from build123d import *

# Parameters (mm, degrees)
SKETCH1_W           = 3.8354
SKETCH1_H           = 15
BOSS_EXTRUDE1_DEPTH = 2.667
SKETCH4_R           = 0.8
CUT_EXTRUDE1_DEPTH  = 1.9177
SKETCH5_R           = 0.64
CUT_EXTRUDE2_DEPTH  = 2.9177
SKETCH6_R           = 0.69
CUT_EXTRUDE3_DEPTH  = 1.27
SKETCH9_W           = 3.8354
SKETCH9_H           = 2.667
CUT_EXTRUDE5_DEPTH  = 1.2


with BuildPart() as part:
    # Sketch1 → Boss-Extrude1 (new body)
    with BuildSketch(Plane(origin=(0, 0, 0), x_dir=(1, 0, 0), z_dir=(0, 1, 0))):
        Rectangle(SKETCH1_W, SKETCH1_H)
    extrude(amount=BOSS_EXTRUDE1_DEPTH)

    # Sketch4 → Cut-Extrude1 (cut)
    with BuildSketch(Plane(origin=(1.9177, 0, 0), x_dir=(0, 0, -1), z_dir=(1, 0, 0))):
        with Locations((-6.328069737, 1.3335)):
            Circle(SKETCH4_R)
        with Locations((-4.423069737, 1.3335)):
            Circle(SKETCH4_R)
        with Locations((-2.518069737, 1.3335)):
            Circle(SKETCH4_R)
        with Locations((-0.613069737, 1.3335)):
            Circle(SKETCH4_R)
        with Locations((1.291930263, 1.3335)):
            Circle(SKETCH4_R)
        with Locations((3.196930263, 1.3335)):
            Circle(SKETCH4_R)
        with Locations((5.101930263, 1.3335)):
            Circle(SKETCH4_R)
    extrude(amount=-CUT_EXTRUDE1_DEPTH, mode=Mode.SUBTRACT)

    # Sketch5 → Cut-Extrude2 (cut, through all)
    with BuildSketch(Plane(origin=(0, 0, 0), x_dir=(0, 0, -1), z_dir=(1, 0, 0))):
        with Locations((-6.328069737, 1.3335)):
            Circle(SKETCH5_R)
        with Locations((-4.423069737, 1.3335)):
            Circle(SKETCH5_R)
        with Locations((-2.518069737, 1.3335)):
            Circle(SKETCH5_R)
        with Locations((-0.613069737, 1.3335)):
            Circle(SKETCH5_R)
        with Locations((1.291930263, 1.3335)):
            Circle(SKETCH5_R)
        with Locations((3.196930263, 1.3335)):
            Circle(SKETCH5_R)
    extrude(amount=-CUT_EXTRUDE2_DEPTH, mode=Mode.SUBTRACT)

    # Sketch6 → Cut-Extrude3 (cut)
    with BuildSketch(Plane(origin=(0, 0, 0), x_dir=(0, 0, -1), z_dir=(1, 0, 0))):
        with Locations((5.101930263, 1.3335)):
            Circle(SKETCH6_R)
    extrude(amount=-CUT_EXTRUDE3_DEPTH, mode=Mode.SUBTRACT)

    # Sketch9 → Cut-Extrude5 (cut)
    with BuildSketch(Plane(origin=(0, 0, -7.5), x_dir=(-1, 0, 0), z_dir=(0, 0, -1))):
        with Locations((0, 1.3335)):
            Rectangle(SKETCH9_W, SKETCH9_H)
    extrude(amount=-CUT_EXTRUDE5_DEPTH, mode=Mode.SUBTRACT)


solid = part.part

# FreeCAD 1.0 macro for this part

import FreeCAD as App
import Part
import Sketcher
from FreeCAD import Vector


def add_polygon(sketch, points):
    """Adds a closed chain of lines whose ends are joined by coincident constraints."""
    first, n = sketch.GeometryCount, len(points)
    for a, b in zip(points, points[1:] + points[:1]):
        sketch.addGeometry(Part.LineSegment(App.Vector(*a, 0), App.Vector(*b, 0)), False)
    for i in range(n):
        sketch.addConstraint(Sketcher.Constraint("Coincident", first + i, 2, first + (i + 1) % n, 1))

doc = App.newDocument("Part")
body = doc.addObject("PartDesign::Body", "Body")

# Sketch on XZ plane
sketch1 = body.newObject("Sketcher::SketchObject", "Sketch")
sketch1.AttachmentSupport = (doc.getObject("XZ_Plane"), [""])
sketch1.MapMode = "FlatFace"
add_polygon(sketch1, [(-1.9, -7.5), (-1.9, 7.5), (1.9, 7.5), (1.9, -7.5)])  # lines 0-3
sketch1.addConstraint([
    Sketcher.Constraint("Vertical", 0),
    Sketcher.Constraint("Horizontal", 1),
    Sketcher.Constraint("Vertical", 2),
    Sketcher.Constraint("Horizontal", 3),
    Sketcher.Constraint("Symmetric", 0, 2, 2, 2, -1, 1),
    Sketcher.Constraint("DistanceY", 0, 1, 0, 2, 15.0),
    Sketcher.Constraint("DistanceX", 1, 1, 1, 2, 3.8354),
])
pad1 = body.newObject("PartDesign::Pad", "Pad")
pad1.Profile = sketch1
pad1.Length = 2.667
pad1.Reversed = True

# Sketch on YZ plane
sketch2 = body.newObject("Sketcher::SketchObject", "Sketch001")
sketch2.AttachmentSupport = (doc.getObject("YZ_Plane"), [""])
sketch2.MapMode = "FlatFace"
sketch2.AttachmentOffset = App.Placement(Vector(0, 0, 1.9177), App.Rotation())
sketch2.addGeometry([
    Part.Circle(Vector(1.3, 6.3, 0), Vector(0, 0, 1), 0.8),  # 0
    Part.Circle(Vector(1.3, 4.4, 0), Vector(0, 0, 1), 0.8),  # 1
    Part.Circle(Vector(1.3, 2.5, 0), Vector(0, 0, 1), 0.8),  # 2
    Part.Circle(Vector(1.3, 0.6, 0), Vector(0, 0, 1), 0.8),  # 3
    Part.Circle(Vector(1.3, -1.3, 0), Vector(0, 0, 1), 0.8),  # 4
    Part.Circle(Vector(1.3, -3.2, 0), Vector(0, 0, 1), 0.8),  # 5
    Part.Circle(Vector(1.3, -5.1, 0), Vector(0, 0, 1), 0.8),  # 6
], False)
sketch2.addConstraint([
    Sketcher.Constraint("Equal", 0, 1),
    Sketcher.Constraint("Equal", 1, 2),
    Sketcher.Constraint("Equal", 2, 3),
    Sketcher.Constraint("Equal", 3, 4),
    Sketcher.Constraint("Equal", 4, 5),
    Sketcher.Constraint("Equal", 5, 6),
    Sketcher.Constraint("Vertical", 0, 3, 1, 3),
    Sketcher.Constraint("Vertical", 1, 3, 2, 3),
    Sketcher.Constraint("Vertical", 2, 3, 3, 3),
    Sketcher.Constraint("Vertical", 3, 3, 4, 3),
    Sketcher.Constraint("Vertical", 4, 3, 5, 3),
    Sketcher.Constraint("Vertical", 5, 3, 6, 3),
    Sketcher.Constraint("Diameter", 0, 1.6),
    Sketcher.Constraint("DistanceY", 2, 3, 0, 3, 3.81),
    Sketcher.Constraint("DistanceY", 3, 3, 1, 3, 3.81),
    Sketcher.Constraint("DistanceY", 4, 3, 2, 3, 3.81),
    Sketcher.Constraint("DistanceY", 5, 3, 3, 3, 3.81),
    Sketcher.Constraint("DistanceY", 6, 3, 4, 3, 3.81),
    Sketcher.Constraint("DistanceY", 1, 3, 0, 3, 1.905),
    Sketcher.Constraint("DistanceX", -1, 1, 0, 3, 1.3335),
    Sketcher.Constraint("DistanceY", -1, 1, 0, 3, 6.32807),
])
pocket1 = body.newObject("PartDesign::Pocket", "Pocket")
pocket1.Profile = sketch2
pocket1.Length = 1.9177

# Sketch on YZ plane
sketch3 = body.newObject("Sketcher::SketchObject", "Sketch002")
sketch3.AttachmentSupport = (doc.getObject("YZ_Plane"), [""])
sketch3.MapMode = "FlatFace"
sketch3.addGeometry([
    Part.Circle(Vector(1.3, 6.3, 0), Vector(0, 0, 1), 0.6),  # 0
    Part.Circle(Vector(1.3, 4.4, 0), Vector(0, 0, 1), 0.6),  # 1
    Part.Circle(Vector(1.3, 2.5, 0), Vector(0, 0, 1), 0.6),  # 2
    Part.Circle(Vector(1.3, 0.6, 0), Vector(0, 0, 1), 0.6),  # 3
    Part.Circle(Vector(1.3, -1.3, 0), Vector(0, 0, 1), 0.6),  # 4
    Part.Circle(Vector(1.3, -3.2, 0), Vector(0, 0, 1), 0.6),  # 5
], False)
sketch3.addConstraint([
    Sketcher.Constraint("Equal", 0, 1),
    Sketcher.Constraint("Equal", 1, 2),
    Sketcher.Constraint("Equal", 2, 3),
    Sketcher.Constraint("Equal", 3, 4),
    Sketcher.Constraint("Equal", 4, 5),
    Sketcher.Constraint("Vertical", 0, 3, 1, 3),
    Sketcher.Constraint("Vertical", 1, 3, 2, 3),
    Sketcher.Constraint("Vertical", 2, 3, 3, 3),
    Sketcher.Constraint("Vertical", 3, 3, 4, 3),
    Sketcher.Constraint("Vertical", 4, 3, 5, 3),
    Sketcher.Constraint("Diameter", 0, 1.28),
    Sketcher.Constraint("DistanceY", 2, 3, 0, 3, 3.81),
    Sketcher.Constraint("DistanceY", 3, 3, 1, 3, 3.81),
    Sketcher.Constraint("DistanceY", 4, 3, 2, 3, 3.81),
    Sketcher.Constraint("DistanceY", 5, 3, 3, 3, 3.81),
    Sketcher.Constraint("DistanceY", 1, 3, 0, 3, 1.905),
    Sketcher.Constraint("DistanceX", -1, 1, 0, 3, 1.3335),
    Sketcher.Constraint("DistanceY", -1, 1, 0, 3, 6.32807),
])
pocket2 = body.newObject("PartDesign::Pocket", "Pocket001")
pocket2.Profile = sketch3
pocket2.Type = "ThroughAll"

# Sketch on YZ plane
sketch4 = body.newObject("Sketcher::SketchObject", "Sketch003")
sketch4.AttachmentSupport = (doc.getObject("YZ_Plane"), [""])
sketch4.MapMode = "FlatFace"
sketch4.addGeometry(Part.Circle(Vector(1.3, -5.1, 0), Vector(0, 0, 1), 0.7), False)
sketch4.addConstraint([
    Sketcher.Constraint("Diameter", 0, 1.38),
    Sketcher.Constraint("DistanceX", -1, 1, 0, 3, 1.3335),
    Sketcher.Constraint("DistanceY", 0, 3, -1, 1, 5.10193),
])
pocket3 = body.newObject("PartDesign::Pocket", "Pocket002")
pocket3.Profile = sketch4
pocket3.Length = 1.27

# Sketch on XY plane
sketch5 = body.newObject("Sketcher::SketchObject", "Sketch004")
sketch5.AttachmentSupport = (doc.getObject("XY_Plane"), [""])
sketch5.MapMode = "FlatFace"
sketch5.AttachmentOffset = App.Placement(Vector(0, 0, -7.5), App.Rotation())
add_polygon(sketch5, [(1.9, 2.7), (1.9, 0), (-1.9, 0), (-1.9, 2.7)])  # lines 0-3
sketch5.addConstraint([
    Sketcher.Constraint("Vertical", 0),
    Sketcher.Constraint("Horizontal", 1),
    Sketcher.Constraint("Vertical", 2),
    Sketcher.Constraint("Horizontal", 3),
    Sketcher.Constraint("Symmetric", 0, 2, 1, 2, -1, 1),
    Sketcher.Constraint("DistanceY", 0, 2, 0, 1, 2.667),
    Sketcher.Constraint("DistanceX", 1, 2, 1, 1, 3.8354),
])
pocket4 = body.newObject("PartDesign::Pocket", "Pocket003")
pocket4.Profile = sketch5
pocket4.Length = 1.2
pocket4.Reversed = True

doc.recompute()
